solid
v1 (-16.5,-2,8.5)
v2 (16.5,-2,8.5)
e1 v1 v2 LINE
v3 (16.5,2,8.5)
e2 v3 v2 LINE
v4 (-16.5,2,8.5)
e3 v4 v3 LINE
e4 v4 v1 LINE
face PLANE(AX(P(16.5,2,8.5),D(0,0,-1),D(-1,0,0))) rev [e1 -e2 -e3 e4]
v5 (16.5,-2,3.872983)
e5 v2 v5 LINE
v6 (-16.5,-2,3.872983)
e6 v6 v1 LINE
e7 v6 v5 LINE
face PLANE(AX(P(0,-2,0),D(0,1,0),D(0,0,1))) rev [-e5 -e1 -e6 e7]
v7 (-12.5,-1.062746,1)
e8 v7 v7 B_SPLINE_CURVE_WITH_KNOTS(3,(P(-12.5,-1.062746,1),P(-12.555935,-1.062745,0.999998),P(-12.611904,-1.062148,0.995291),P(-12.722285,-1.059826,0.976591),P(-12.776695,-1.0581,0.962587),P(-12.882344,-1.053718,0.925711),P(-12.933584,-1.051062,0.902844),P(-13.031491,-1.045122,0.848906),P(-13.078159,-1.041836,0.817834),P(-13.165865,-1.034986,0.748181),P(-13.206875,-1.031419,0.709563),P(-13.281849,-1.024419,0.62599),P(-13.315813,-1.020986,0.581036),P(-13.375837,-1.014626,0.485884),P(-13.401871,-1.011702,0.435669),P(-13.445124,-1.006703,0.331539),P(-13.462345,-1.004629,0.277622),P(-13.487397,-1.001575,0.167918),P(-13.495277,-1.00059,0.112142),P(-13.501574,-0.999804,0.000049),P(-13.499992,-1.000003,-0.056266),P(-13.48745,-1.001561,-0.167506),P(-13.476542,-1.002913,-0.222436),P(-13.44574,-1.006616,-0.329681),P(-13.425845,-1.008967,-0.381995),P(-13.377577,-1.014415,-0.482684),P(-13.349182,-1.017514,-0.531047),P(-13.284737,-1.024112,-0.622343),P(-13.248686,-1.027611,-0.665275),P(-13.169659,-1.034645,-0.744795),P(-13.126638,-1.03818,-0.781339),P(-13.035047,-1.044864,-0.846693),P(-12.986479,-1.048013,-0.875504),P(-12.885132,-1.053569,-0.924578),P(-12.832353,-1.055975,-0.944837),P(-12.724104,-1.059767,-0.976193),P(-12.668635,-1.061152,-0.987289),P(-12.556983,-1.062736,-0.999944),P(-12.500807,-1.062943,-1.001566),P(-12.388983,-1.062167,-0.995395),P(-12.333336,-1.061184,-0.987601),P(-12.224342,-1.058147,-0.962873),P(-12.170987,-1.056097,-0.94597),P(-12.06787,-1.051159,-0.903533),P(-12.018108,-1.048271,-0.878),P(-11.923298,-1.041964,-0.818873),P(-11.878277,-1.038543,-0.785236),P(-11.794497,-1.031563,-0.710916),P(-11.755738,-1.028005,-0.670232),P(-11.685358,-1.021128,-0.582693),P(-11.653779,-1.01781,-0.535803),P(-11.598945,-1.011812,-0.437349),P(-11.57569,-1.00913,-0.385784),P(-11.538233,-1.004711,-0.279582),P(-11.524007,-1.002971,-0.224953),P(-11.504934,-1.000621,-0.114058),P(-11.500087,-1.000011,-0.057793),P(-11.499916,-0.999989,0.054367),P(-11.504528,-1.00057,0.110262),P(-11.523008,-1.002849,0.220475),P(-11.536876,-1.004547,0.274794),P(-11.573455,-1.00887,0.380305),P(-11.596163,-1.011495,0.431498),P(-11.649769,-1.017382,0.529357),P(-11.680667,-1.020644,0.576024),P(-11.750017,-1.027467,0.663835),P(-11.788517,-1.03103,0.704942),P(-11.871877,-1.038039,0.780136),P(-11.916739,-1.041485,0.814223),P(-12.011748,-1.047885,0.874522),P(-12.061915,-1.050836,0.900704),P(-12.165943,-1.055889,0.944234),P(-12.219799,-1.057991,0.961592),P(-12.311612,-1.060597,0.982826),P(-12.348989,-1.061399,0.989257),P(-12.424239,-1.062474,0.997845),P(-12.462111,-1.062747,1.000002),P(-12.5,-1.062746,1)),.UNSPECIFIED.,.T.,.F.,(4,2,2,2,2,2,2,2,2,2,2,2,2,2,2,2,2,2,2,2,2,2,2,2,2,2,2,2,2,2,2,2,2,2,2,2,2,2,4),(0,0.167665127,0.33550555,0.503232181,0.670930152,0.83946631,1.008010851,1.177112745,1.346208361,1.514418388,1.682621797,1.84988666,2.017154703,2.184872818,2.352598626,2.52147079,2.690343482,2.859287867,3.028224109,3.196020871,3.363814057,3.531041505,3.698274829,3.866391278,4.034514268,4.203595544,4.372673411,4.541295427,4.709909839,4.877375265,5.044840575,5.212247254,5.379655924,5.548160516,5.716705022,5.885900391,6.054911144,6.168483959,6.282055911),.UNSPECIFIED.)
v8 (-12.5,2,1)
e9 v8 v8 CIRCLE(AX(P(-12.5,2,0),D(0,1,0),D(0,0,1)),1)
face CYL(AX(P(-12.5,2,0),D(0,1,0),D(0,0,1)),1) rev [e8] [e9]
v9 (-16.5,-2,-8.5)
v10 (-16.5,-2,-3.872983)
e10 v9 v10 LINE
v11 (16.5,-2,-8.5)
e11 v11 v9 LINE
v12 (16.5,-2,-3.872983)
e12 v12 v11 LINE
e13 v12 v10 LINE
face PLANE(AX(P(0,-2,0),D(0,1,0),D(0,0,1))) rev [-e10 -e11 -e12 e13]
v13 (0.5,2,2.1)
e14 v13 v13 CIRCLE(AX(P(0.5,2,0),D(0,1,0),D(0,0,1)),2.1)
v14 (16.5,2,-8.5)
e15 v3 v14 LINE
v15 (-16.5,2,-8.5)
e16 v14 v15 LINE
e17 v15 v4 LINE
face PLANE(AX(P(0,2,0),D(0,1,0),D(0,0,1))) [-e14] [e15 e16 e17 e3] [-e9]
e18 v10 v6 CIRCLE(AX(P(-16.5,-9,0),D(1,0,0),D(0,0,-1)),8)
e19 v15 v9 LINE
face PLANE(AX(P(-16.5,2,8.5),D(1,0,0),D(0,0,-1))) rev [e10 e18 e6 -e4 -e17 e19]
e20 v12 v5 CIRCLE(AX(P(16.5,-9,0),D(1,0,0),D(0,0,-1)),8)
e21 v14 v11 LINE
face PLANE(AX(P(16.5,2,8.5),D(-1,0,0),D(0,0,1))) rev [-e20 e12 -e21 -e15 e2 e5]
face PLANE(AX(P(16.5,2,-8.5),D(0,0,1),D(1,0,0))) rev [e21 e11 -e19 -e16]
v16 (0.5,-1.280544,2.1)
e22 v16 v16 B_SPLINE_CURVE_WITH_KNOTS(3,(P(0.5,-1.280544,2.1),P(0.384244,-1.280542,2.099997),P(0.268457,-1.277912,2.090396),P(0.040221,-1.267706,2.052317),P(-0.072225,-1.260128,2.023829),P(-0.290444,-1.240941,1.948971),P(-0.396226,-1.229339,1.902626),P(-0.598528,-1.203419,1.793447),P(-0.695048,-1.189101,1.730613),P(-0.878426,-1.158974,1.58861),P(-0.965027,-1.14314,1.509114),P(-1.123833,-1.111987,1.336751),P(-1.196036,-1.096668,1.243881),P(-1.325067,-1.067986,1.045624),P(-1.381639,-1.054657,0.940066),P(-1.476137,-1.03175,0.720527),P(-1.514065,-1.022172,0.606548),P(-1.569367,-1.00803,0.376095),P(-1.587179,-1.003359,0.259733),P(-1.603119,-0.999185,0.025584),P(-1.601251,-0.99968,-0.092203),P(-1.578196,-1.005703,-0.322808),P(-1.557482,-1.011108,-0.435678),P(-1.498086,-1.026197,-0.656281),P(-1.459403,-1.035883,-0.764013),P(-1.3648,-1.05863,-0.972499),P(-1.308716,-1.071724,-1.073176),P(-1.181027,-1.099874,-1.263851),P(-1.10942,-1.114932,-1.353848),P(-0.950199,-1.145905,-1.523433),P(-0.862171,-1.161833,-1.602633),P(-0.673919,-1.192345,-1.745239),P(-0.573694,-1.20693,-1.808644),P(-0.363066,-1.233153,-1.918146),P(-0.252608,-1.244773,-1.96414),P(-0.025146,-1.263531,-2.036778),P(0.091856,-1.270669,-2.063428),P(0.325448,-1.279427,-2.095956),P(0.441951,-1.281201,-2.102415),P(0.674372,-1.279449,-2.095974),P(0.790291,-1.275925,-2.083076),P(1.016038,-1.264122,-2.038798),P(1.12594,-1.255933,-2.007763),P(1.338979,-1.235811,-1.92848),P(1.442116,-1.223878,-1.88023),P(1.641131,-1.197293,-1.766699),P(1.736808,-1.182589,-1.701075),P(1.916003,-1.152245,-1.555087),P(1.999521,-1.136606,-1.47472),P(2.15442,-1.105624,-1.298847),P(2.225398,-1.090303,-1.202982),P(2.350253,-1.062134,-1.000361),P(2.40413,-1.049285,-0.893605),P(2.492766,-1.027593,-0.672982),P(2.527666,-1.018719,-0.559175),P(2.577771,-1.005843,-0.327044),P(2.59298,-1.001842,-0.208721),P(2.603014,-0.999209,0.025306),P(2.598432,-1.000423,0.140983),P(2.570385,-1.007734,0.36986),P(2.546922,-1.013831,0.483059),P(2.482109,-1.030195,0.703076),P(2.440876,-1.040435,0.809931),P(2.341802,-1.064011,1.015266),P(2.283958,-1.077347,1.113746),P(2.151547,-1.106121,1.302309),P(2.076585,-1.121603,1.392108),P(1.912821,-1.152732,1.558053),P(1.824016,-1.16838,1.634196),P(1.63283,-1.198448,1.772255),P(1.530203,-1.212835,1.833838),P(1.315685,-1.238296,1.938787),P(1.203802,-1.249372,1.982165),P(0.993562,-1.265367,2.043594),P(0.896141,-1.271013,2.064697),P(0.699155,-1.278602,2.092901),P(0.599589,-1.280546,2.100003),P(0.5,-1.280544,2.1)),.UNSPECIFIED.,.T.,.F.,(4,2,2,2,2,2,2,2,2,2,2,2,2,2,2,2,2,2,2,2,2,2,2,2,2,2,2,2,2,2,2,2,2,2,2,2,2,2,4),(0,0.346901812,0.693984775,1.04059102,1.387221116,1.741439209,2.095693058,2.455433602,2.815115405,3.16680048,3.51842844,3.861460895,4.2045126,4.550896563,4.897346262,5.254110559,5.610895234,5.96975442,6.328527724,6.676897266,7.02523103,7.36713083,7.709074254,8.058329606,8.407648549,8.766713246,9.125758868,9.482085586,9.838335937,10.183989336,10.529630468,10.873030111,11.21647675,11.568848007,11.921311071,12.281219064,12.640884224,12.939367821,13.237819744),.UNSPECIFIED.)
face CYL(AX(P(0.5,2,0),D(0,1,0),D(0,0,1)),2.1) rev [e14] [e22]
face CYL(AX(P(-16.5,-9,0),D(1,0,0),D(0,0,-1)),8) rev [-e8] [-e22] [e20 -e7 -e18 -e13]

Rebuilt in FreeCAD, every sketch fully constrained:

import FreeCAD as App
import Part
import Sketcher

V = App.Vector

doc = App.newDocument("Part")
body = doc.addObject("PartDesign::Body", "Body")

sketch1 = body.newObject("Sketcher::SketchObject", "Sketch")
sketch1.AttachmentSupport = (doc.getObject("XZ_Plane"), [""])
sketch1.MapMode = "FlatFace"
sketch1.addGeometry([
    Part.LineSegment(V(-16, -8, 0), V(-16, 8, 0)),
    Part.LineSegment(V(-16, 8, 0), V(16, 8, 0)),
    Part.LineSegment(V(16, 8, 0), V(16, -8, 0)),
    Part.LineSegment(V(16, -8, 0), V(-16, -8, 0)),
], False)
sketch1.addConstraint([
    Sketcher.Constraint("Coincident", 0, 2, 1, 1),
    Sketcher.Constraint("Coincident", 1, 2, 2, 1),
    Sketcher.Constraint("Coincident", 2, 2, 3, 1),
    Sketcher.Constraint("Coincident", 3, 2, 0, 1),
    Sketcher.Constraint("Vertical", 0),
    Sketcher.Constraint("Horizontal", 1),
    Sketcher.Constraint("Vertical", 2),
    Sketcher.Constraint("Horizontal", 3),
    Sketcher.Constraint("Symmetric", 0, 2, 2, 2, -1, 1),
    Sketcher.Constraint("DistanceX", 1, 1, 1, 2, 33.0),
    Sketcher.Constraint("DistanceY", 0, 1, 0, 2, 17.0),
])
pad1 = body.newObject("PartDesign::Pad", "Pad")
pad1.Profile = sketch1
pad1.Length = 4
pad1.Midplane = True

sketch2 = body.newObject("Sketcher::SketchObject", "Sketch001")
sketch2.AttachmentSupport = (doc.getObject("XZ_Plane"), [""])
sketch2.MapMode = "FlatFace"
sketch2.AttachmentOffset = App.Placement(V(0, 0, -2), App.Rotation())
sketch2.addGeometry(Part.Circle(V(0.5, 0, 0), V(0, 0, 1), 2.1), False)
sketch2.addConstraint([
    Sketcher.Constraint("PointOnObject", 0, 3, -1),
    Sketcher.Constraint("Diameter", 0, 4.2),
    Sketcher.Constraint("DistanceX", -1, 1, 0, 3, 0.5),
])
doc.recompute()
hole = body.newObject("PartDesign::Hole", "Hole")
hole.Profile = sketch2
hole.ThreadType = "None"
hole.Diameter = 4.2
hole.DepthType = "ThroughAll"
hole.Reversed = True

sketch3 = body.newObject("Sketcher::SketchObject", "Sketch002")
sketch3.AttachmentSupport = (doc.getObject("XZ_Plane"), [""])
sketch3.MapMode = "FlatFace"
sketch3.AttachmentOffset = App.Placement(V(0, 0, -2), App.Rotation())
sketch3.addGeometry(Part.Circle(V(-12.5, 0, 0), V(0, 0, 1), 1), False)
sketch3.addConstraint([
    Sketcher.Constraint("PointOnObject", 0, 3, -1),
    Sketcher.Constraint("Diameter", 0, 2.0),
    Sketcher.Constraint("DistanceX", 0, 3, -1, 1, 12.5),
])
doc.recompute()
hole2 = body.newObject("PartDesign::Hole", "Hole001")
hole2.Profile = sketch3
hole2.ThreadType = "None"
hole2.Diameter = 2
hole2.DepthType = "ThroughAll"
hole2.Reversed = True

sketch4 = body.newObject("Sketcher::SketchObject", "Sketch003")
sketch4.AttachmentSupport = (doc.getObject("YZ_Plane"), [""])
sketch4.MapMode = "FlatFace"
sketch4.AttachmentOffset = App.Placement(V(0, 0, 16.5), App.Rotation())
sketch4.addGeometry(Part.Circle(V(-9, 0, 0), V(0, 0, 1), 8), False)
sketch4.addConstraint([
    Sketcher.Constraint("PointOnObject", 0, 3, -1),
    Sketcher.Constraint("Diameter", 0, 16.0),
    Sketcher.Constraint("DistanceX", 0, 3, -1, 1, 9.0),
])
pocket1 = body.newObject("PartDesign::Pocket", "Pocket")
pocket1.Profile = sketch4
pocket1.Type = "ThroughAll"

doc.recompute()
